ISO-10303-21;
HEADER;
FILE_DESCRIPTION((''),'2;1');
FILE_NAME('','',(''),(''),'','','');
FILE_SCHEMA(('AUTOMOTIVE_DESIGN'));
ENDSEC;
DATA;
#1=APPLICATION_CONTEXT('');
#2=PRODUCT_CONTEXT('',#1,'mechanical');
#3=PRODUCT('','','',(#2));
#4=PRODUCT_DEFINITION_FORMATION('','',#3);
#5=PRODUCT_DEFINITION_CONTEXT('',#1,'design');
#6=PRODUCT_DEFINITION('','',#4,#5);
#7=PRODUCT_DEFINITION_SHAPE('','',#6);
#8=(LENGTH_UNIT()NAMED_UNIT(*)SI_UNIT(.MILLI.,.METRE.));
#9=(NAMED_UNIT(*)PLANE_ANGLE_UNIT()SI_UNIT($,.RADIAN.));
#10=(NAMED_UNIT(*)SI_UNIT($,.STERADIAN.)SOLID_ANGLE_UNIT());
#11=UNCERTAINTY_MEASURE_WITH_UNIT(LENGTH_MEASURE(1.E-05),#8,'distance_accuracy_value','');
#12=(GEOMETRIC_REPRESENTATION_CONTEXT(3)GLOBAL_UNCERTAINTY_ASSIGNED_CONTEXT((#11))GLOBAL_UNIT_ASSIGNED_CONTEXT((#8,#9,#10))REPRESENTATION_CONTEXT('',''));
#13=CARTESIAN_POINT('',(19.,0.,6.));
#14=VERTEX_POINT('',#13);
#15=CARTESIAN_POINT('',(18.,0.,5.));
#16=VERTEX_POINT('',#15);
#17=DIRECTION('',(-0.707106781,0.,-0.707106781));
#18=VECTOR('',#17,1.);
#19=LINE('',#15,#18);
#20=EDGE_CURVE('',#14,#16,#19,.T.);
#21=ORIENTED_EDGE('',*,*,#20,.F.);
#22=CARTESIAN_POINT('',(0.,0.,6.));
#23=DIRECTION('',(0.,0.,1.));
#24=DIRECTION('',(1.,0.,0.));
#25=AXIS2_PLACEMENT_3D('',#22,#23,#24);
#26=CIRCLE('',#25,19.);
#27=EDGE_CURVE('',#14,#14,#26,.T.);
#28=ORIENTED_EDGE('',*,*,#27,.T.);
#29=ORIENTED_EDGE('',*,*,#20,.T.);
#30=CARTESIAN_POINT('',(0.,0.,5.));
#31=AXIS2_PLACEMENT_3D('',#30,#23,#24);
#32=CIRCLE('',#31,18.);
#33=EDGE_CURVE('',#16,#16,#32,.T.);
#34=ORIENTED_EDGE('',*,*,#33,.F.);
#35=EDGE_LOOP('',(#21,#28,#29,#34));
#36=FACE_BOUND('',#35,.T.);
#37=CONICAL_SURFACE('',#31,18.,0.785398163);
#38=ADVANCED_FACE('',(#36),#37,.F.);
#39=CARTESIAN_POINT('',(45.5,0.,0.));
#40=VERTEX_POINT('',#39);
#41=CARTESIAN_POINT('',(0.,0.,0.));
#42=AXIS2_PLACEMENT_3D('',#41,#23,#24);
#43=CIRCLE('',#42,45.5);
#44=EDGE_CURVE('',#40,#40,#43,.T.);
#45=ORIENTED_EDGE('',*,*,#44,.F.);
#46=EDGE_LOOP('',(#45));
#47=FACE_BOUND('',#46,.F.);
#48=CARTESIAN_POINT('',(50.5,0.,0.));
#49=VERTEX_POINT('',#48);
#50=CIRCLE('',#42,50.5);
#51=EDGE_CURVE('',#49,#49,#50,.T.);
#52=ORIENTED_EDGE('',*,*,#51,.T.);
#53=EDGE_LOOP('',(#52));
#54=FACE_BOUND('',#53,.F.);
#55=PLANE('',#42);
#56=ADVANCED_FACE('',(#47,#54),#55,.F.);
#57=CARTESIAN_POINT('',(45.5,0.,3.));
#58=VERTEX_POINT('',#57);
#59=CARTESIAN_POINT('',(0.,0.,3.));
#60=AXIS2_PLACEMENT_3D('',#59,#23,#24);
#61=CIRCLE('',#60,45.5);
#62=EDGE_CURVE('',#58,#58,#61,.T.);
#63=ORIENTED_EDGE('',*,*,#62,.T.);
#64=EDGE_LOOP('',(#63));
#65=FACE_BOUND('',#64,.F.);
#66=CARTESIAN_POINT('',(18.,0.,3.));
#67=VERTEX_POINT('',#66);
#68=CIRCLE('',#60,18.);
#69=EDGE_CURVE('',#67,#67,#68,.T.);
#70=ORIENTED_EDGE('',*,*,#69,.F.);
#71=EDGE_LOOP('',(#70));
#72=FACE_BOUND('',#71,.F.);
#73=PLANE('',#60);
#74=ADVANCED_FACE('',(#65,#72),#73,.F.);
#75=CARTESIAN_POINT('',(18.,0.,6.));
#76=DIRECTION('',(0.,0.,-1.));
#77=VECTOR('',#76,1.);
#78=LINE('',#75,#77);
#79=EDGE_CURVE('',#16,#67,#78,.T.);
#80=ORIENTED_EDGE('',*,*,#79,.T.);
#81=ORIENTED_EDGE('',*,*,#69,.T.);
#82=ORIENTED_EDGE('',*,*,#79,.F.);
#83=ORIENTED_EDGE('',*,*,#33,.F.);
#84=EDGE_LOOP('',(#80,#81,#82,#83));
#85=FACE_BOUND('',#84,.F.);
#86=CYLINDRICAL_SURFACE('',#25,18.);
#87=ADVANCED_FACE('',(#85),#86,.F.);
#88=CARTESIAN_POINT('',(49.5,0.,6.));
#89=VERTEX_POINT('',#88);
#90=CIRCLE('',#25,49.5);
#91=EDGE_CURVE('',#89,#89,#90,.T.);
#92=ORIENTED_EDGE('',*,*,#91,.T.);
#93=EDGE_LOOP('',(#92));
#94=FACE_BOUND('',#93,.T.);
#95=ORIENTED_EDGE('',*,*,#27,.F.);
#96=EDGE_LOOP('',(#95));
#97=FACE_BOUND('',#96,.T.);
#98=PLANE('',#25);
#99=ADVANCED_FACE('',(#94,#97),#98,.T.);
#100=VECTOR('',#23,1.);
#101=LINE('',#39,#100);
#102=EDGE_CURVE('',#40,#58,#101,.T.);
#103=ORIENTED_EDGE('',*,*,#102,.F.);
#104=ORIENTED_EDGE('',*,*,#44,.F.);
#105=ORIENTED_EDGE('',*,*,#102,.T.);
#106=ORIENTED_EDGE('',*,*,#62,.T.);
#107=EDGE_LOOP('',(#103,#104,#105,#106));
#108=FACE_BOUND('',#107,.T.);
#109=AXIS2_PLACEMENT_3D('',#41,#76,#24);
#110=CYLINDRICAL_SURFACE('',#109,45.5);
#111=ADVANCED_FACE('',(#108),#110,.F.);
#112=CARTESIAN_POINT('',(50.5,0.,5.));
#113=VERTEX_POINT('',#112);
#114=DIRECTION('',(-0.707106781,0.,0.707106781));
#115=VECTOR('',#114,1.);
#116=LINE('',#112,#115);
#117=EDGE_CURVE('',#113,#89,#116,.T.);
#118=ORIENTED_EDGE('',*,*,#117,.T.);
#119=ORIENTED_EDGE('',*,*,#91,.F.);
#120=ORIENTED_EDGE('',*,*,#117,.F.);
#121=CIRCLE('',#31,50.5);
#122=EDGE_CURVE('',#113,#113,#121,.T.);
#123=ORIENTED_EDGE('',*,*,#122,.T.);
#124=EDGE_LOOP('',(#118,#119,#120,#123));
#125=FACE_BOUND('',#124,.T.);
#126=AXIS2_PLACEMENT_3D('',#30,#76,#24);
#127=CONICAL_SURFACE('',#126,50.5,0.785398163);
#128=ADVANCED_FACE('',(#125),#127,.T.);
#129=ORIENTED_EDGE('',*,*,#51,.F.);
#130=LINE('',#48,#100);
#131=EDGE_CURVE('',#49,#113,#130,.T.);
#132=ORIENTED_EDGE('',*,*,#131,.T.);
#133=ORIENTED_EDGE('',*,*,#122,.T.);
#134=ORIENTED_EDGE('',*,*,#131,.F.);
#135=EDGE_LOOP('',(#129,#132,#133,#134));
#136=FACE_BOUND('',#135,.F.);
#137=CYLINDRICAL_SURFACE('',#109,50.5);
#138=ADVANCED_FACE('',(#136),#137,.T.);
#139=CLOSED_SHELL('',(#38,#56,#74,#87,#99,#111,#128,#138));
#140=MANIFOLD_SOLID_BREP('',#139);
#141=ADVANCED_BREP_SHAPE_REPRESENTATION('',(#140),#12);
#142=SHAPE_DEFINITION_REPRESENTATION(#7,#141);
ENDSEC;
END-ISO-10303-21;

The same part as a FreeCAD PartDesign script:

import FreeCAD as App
import Part
import Sketcher
from FreeCAD import Vector


def edges_at(feature, points):
    """Names of the edges that pass closest to the given points."""
    edges = feature.Shape.Edges
    near = lambda p: min(range(len(edges)), key=lambda i: edges[i].distToShape(Part.Vertex(*p))[0])
    return sorted({f"Edge{near(p) + 1}" for p in points})

doc = App.newDocument("Part")
body = doc.addObject("PartDesign::Body", "Body")

sketch1 = doc.addObject("Sketcher::SketchObject", "Sketch")
body.addObject(sketch1)
sketch1.AttachmentSupport = (doc.XY_Plane, [""])
sketch1.MapMode = "FlatFace"
sketch1.addGeometry(Part.Circle(Vector(0, 0, 0), Vector(0, 0, 1), 50), False)
sketch1.addConstraint([
    Sketcher.Constraint("Coincident", 0, 3, -1, 1),
    Sketcher.Constraint("Diameter", 0, 101.0),
])
pad1 = doc.addObject("PartDesign::Pad", "Pad")
body.addObject(pad1)
pad1.Profile = sketch1
pad1.Length = 6

sketch2 = doc.addObject("Sketcher::SketchObject", "Sketch001")
body.addObject(sketch2)
sketch2.AttachmentSupport = (doc.XY_Plane, [""])
sketch2.MapMode = "FlatFace"
sketch2.addGeometry(Part.Circle(Vector(0, 0, 0), Vector(0, 0, 1), 46), False)
sketch2.addConstraint([
    Sketcher.Constraint("Coincident", 0, 3, -1, 1),
    Sketcher.Constraint("Diameter", 0, 91.0),
])
pocket1 = doc.addObject("PartDesign::Pocket", "Pocket")
body.addObject(pocket1)
pocket1.Profile = sketch2
pocket1.Length = 3
pocket1.Reversed = True

sketch3 = doc.addObject("Sketcher::SketchObject", "Sketch002")
body.addObject(sketch3)
sketch3.AttachmentSupport = (doc.XY_Plane, [""])
sketch3.MapMode = "FlatFace"
sketch3.AttachmentOffset = App.Placement(Vector(0, 0, 6), App.Rotation())
sketch3.addGeometry(Part.Circle(Vector(0, 0, 0), Vector(0, 0, 1), 18), False)
sketch3.addConstraint([
    Sketcher.Constraint("Coincident", 0, 3, -1, 1),
    Sketcher.Constraint("Diameter", 0, 36.0),
])
pocket2 = doc.addObject("PartDesign::Pocket", "Pocket001")
body.addObject(pocket2)
pocket2.Profile = sketch3
pocket2.Type = "ThroughAll"
doc.recompute()

chamfer = doc.addObject("PartDesign::Chamfer", "Chamfer")
body.addObject(chamfer)
chamfer.Base = (pocket2, edges_at(pocket2, [(-18, 0, 6), (-50.5, 0, 6)]))
chamfer.Size = 1

doc.recompute()
